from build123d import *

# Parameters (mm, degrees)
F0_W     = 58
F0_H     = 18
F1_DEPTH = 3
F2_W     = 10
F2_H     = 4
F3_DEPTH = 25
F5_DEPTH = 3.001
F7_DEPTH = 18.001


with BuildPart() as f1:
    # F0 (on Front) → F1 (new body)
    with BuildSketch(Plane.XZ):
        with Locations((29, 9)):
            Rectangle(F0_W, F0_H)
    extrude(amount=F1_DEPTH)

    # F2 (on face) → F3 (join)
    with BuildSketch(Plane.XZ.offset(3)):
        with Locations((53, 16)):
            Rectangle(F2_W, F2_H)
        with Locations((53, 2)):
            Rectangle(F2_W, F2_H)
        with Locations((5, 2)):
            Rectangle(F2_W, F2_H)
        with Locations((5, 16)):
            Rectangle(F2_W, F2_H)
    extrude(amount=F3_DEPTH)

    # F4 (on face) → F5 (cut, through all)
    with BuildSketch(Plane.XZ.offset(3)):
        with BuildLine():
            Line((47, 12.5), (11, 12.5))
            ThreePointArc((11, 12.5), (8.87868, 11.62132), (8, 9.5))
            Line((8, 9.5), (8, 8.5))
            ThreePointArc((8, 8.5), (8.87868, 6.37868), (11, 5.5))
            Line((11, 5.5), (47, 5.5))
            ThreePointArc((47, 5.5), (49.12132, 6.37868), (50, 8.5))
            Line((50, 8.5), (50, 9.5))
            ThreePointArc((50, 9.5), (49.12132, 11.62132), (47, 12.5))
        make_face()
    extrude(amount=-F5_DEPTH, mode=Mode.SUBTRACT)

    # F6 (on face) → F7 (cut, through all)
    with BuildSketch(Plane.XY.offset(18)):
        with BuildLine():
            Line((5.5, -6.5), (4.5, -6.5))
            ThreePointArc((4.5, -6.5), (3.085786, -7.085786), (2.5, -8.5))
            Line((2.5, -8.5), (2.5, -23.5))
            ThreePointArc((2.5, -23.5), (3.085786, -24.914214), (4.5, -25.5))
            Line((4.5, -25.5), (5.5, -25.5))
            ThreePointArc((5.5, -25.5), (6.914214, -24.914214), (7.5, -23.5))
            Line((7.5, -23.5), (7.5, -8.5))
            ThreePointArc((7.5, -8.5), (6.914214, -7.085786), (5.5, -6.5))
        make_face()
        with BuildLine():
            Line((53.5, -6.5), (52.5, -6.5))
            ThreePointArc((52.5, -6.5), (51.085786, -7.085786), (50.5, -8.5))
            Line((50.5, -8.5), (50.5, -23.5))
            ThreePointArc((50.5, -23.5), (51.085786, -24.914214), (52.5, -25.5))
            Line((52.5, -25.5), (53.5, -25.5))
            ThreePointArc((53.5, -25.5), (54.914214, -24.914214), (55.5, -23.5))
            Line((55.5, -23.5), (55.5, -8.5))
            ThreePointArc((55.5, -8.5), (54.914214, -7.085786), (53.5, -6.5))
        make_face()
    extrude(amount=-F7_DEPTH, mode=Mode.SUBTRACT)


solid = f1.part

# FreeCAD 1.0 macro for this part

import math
import FreeCAD as App
import Part
import Sketcher

doc = App.newDocument("Part")
params = doc.addObject("Spreadsheet::Sheet", "Params")
for row, (alias, value) in enumerate([
    ("sketch1_width", "58 mm"),
    ("sketch1_height", "18 mm"),
    ("pad1_length", "3 mm"),
    ("sketch2_width", "10 mm"),
    ("sketch2_height", "4 mm"),
    ("pad2_length", "25 mm"),
    ("sketch3_radius", "3.000001 mm"),
    ("sketch3_width", "36 mm"),
    ("sketch3_height", "1 mm"),
    ("sketch4_radius", "1.999999 mm"),
    ("sketch4_width", "1 mm"),
    ("sketch4_height", "15 mm"),
], start=1):
    params.set(f"A{row}", alias)
    params.set(f"B{row}", "=" + value)
    params.setAlias(f"B{row}", alias)

body = doc.addObject("PartDesign::Body", "Body")

sketch1 = body.newObject("Sketcher::SketchObject", "Sketch")
sketch1.AttachmentSupport = (doc.getObject("XZ_Plane"), [""])
sketch1.MapMode = "FlatFace"
sketch1.addGeometry([
    Part.LineSegment(App.Vector(0, 18, 0), App.Vector(0, 0, 0)),
    Part.LineSegment(App.Vector(0, 0, 0), App.Vector(58, 0, 0)),
    Part.LineSegment(App.Vector(58, 0, 0), App.Vector(58, 18, 0)),
    Part.LineSegment(App.Vector(58, 18, 0), App.Vector(0, 18, 0)),
], False)
sketch1.addConstraint([
    Sketcher.Constraint("Coincident", 0, 2, 1, 1),
    Sketcher.Constraint("Coincident", 1, 2, 2, 1),
    Sketcher.Constraint("Coincident", 2, 2, 3, 1),
    Sketcher.Constraint("Coincident", 3, 2, 0, 1),
    Sketcher.Constraint("Vertical", 0),
    Sketcher.Constraint("Horizontal", 1),
    Sketcher.Constraint("Vertical", 2),
    Sketcher.Constraint("Horizontal", 3),
    Sketcher.Constraint("Coincident", 0, 2, -1, 1),
    Sketcher.Constraint("DistanceX", 1, 1, 1, 2, 58.0),
    Sketcher.Constraint("DistanceY", 0, 2, 0, 1, 18.0),
])
sketch1.setExpression("Constraints[9]", "Params.sketch1_width")
sketch1.setExpression("Constraints[10]", "Params.sketch1_height")
pad1 = body.newObject("PartDesign::Pad", "Pad")
pad1.Profile = sketch1
pad1.setExpression("Length", "Params.pad1_length")

sketch2 = body.newObject("Sketcher::SketchObject", "Sketch001")
sketch2.AttachmentSupport = (doc.getObject("XZ_Plane"), [""])
sketch2.MapMode = "FlatFace"
sketch2.AttachmentOffset = App.Placement(App.Vector(0, 0, 3), App.Rotation())
sketch2.addGeometry([
    Part.LineSegment(App.Vector(48, 18, 0), App.Vector(48, 14, 0)),
    Part.LineSegment(App.Vector(48, 14, 0), App.Vector(58, 14, 0)),
    Part.LineSegment(App.Vector(58, 14, 0), App.Vector(58, 18, 0)),
    Part.LineSegment(App.Vector(58, 18, 0), App.Vector(48, 18, 0)),
    Part.LineSegment(App.Vector(48, 4, 0), App.Vector(48, 0, 0)),
    Part.LineSegment(App.Vector(48, 0, 0), App.Vector(58, 0, 0)),
    Part.LineSegment(App.Vector(58, 0, 0), App.Vector(58, 4, 0)),
    Part.LineSegment(App.Vector(58, 4, 0), App.Vector(48, 4, 0)),
    Part.LineSegment(App.Vector(0, 4, 0), App.Vector(0, 0, 0)),
    Part.LineSegment(App.Vector(0, 0, 0), App.Vector(10, 0, 0)),
    Part.LineSegment(App.Vector(10, 0, 0), App.Vector(10, 4, 0)),
    Part.LineSegment(App.Vector(10, 4, 0), App.Vector(0, 4, 0)),
    Part.LineSegment(App.Vector(0, 18, 0), App.Vector(0, 14, 0)),
    Part.LineSegment(App.Vector(0, 14, 0), App.Vector(10, 14, 0)),
    Part.LineSegment(App.Vector(10, 14, 0), App.Vector(10, 18, 0)),
    Part.LineSegment(App.Vector(10, 18, 0), App.Vector(0, 18, 0)),
], False)
sketch2.addConstraint([
    Sketcher.Constraint("Coincident", 0, 2, 1, 1),
    Sketcher.Constraint("Coincident", 1, 2, 2, 1),
    Sketcher.Constraint("Coincident", 2, 2, 3, 1),
    Sketcher.Constraint("Coincident", 3, 2, 0, 1),
    Sketcher.Constraint("Coincident", 4, 2, 5, 1),
    Sketcher.Constraint("Coincident", 5, 2, 6, 1),
    Sketcher.Constraint("Coincident", 6, 2, 7, 1),
    Sketcher.Constraint("Coincident", 7, 2, 4, 1),
    Sketcher.Constraint("Coincident", 8, 2, 9, 1),
    Sketcher.Constraint("Coincident", 9, 2, 10, 1),
    Sketcher.Constraint("Coincident", 10, 2, 11, 1),
    Sketcher.Constraint("Coincident", 11, 2, 8, 1),
    Sketcher.Constraint("Coincident", 12, 2, 13, 1),
    Sketcher.Constraint("Coincident", 13, 2, 14, 1),
    Sketcher.Constraint("Coincident", 14, 2, 15, 1),
    Sketcher.Constraint("Coincident", 15, 2, 12, 1),
    Sketcher.Constraint("Vertical", 0),
    Sketcher.Constraint("Horizontal", 1),
    Sketcher.Constraint("Vertical", 2),
    Sketcher.Constraint("Horizontal", 3),
    Sketcher.Constraint("Vertical", 4),
    Sketcher.Constraint("Horizontal", 5),
    Sketcher.Constraint("Vertical", 6),
    Sketcher.Constraint("Horizontal", 7),
    Sketcher.Constraint("Vertical", 8),
    Sketcher.Constraint("Horizontal", 9),
    Sketcher.Constraint("Vertical", 10),
    Sketcher.Constraint("Horizontal", 11),
    Sketcher.Constraint("Vertical", 12),
    Sketcher.Constraint("Horizontal", 13),
    Sketcher.Constraint("Vertical", 14),
    Sketcher.Constraint("Horizontal", 15),
    Sketcher.Constraint("Coincident", 8, 2, -1, 1),
    Sketcher.Constraint("PointOnObject", 4, 2, -1),
    Sketcher.Constraint("PointOnObject", 12, 2, -2),
    Sketcher.Constraint("Horizontal", 7, 2, 10, 2),
    Sketcher.Constraint("Horizontal", 1, 2, 12, 2),
    Sketcher.Constraint("Horizontal", 3, 2, 14, 2),
    Sketcher.Constraint("Vertical", 3, 2, 4, 2),
    Sketcher.Constraint("Vertical", 2, 2, 5, 2),
    Sketcher.Constraint("Vertical", 10, 2, 13, 2),
    Sketcher.Constraint("Equal", 7, 9),
    Sketcher.Constraint("Equal", 2, 4),
    Sketcher.Constraint("DistanceX", 1, 1, 1, 2, 10.0),
    Sketcher.Constraint("DistanceY", 0, 2, 0, 1, 4.0),
    Sketcher.Constraint("DistanceX", -1, 1, 0, 2, 48.0),
    Sketcher.Constraint("DistanceY", -1, 1, 0, 2, 14.0),
])
sketch2.setExpression("Constraints[43]", "Params.sketch2_width")
sketch2.setExpression("Constraints[44]", "Params.sketch2_height")
pad2 = body.newObject("PartDesign::Pad", "Pad001")
pad2.Profile = sketch2
pad2.setExpression("Length", "Params.pad2_length")

sketch3 = body.newObject("Sketcher::SketchObject", "Sketch002")
sketch3.AttachmentSupport = (doc.getObject("XZ_Plane"), [""])
sketch3.MapMode = "FlatFace"
sketch3.AttachmentOffset = App.Placement(App.Vector(0, 0, 3), App.Rotation())
sketch3.addGeometry([
    Part.LineSegment(App.Vector(47, 12.5, 0), App.Vector(11, 12.5, 0)),
    Part.ArcOfCircle(Part.Circle(App.Vector(11, 9.5, 0), App.Vector(0, 0, 1), 3), math.radians(90), math.radians(180)),
    Part.LineSegment(App.Vector(8, 9.5, 0), App.Vector(8, 8.5, 0)),
    Part.ArcOfCircle(Part.Circle(App.Vector(11, 8.5, 0), App.Vector(0, 0, 1), 3), math.radians(-180), math.radians(-90)),
    Part.LineSegment(App.Vector(11, 5.5, 0), App.Vector(47, 5.5, 0)),
    Part.ArcOfCircle(Part.Circle(App.Vector(47, 8.5, 0), App.Vector(0, 0, 1), 3), math.radians(-90), math.radians(0)),
    Part.LineSegment(App.Vector(50, 8.5, 0), App.Vector(50, 9.5, 0)),
    Part.ArcOfCircle(Part.Circle(App.Vector(47, 9.5, 0), App.Vector(0, 0, 1), 3), math.radians(0), math.radians(90)),
], False)
sketch3.addConstraint([
    Sketcher.Constraint("Tangent", 0, 2, 1, 1),
    Sketcher.Constraint("Tangent", 1, 2, 2, 1),
    Sketcher.Constraint("Tangent", 2, 2, 3, 1),
    Sketcher.Constraint("Tangent", 3, 2, 4, 1),
    Sketcher.Constraint("Tangent", 4, 2, 5, 1),
    Sketcher.Constraint("Tangent", 5, 2, 6, 1),
    Sketcher.Constraint("Tangent", 6, 2, 7, 1),
    Sketcher.Constraint("Tangent", 7, 2, 0, 1),
    Sketcher.Constraint("Horizontal", 0),
    Sketcher.Constraint("Vertical", 2),
    Sketcher.Constraint("Horizontal", 4),
    Sketcher.Constraint("Vertical", 6),
    Sketcher.Constraint("Equal", 1, 3),
    Sketcher.Constraint("Equal", 3, 5),
    Sketcher.Constraint("Equal", 5, 7),
    Sketcher.Constraint("Radius", 1, 3.000001),
    Sketcher.Constraint("DistanceX", 0, 2, 0, 1, 36.0),
    Sketcher.Constraint("DistanceY", 2, 2, 2, 1, 1.0),
    Sketcher.Constraint("DistanceX", -1, 1, 1, 3, 11.000001),
    Sketcher.Constraint("DistanceY", -1, 1, 1, 3, 9.499999),
])
sketch3.setExpression("Constraints[15]", "Params.sketch3_radius")
sketch3.setExpression("Constraints[16]", "Params.sketch3_width")
sketch3.setExpression("Constraints[17]", "Params.sketch3_height")
pocket1 = body.newObject("PartDesign::Pocket", "Pocket")
pocket1.Profile = sketch3
pocket1.Type = "ThroughAll"

sketch4 = body.newObject("Sketcher::SketchObject", "Sketch003")
sketch4.AttachmentSupport = (doc.getObject("XY_Plane"), [""])
sketch4.MapMode = "FlatFace"
sketch4.AttachmentOffset = App.Placement(App.Vector(0, 0, 18), App.Rotation())
sketch4.addGeometry([
    Part.LineSegment(App.Vector(5.5, -6.5, 0), App.Vector(4.5, -6.5, 0)),
    Part.ArcOfCircle(Part.Circle(App.Vector(4.5, -8.5, 0), App.Vector(0, 0, 1), 2), math.radians(90), math.radians(180)),
    Part.LineSegment(App.Vector(2.5, -8.5, 0), App.Vector(2.5, -23.5, 0)),
    Part.ArcOfCircle(Part.Circle(App.Vector(4.5, -23.5, 0), App.Vector(0, 0, 1), 2), math.radians(180), math.radians(270)),
    Part.LineSegment(App.Vector(4.5, -25.5, 0), App.Vector(5.5, -25.5, 0)),
    Part.ArcOfCircle(Part.Circle(App.Vector(5.5, -23.5, 0), App.Vector(0, 0, 1), 2), math.radians(-90), math.radians(0)),
    Part.LineSegment(App.Vector(7.5, -23.5, 0), App.Vector(7.5, -8.5, 0)),
    Part.ArcOfCircle(Part.Circle(App.Vector(5.5, -8.5, 0), App.Vector(0, 0, 1), 2), math.radians(0), math.radians(90)),
    Part.LineSegment(App.Vector(53.5, -6.5, 0), App.Vector(52.5, -6.5, 0)),
    Part.ArcOfCircle(Part.Circle(App.Vector(52.5, -8.5, 0), App.Vector(0, 0, 1), 2), math.radians(90), math.radians(180)),
    Part.LineSegment(App.Vector(50.5, -8.5, 0), App.Vector(50.5, -23.5, 0)),
    Part.ArcOfCircle(Part.Circle(App.Vector(52.5, -23.5, 0), App.Vector(0, 0, 1), 2), math.radians(180), math.radians(270)),
    Part.LineSegment(App.Vector(52.5, -25.5, 0), App.Vector(53.5, -25.5, 0)),
    Part.ArcOfCircle(Part.Circle(App.Vector(53.5, -23.5, 0), App.Vector(0, 0, 1), 2), math.radians(-90), math.radians(0)),
    Part.LineSegment(App.Vector(55.5, -23.5, 0), App.Vector(55.5, -8.5, 0)),
    Part.ArcOfCircle(Part.Circle(App.Vector(53.5, -8.5, 0), App.Vector(0, 0, 1), 2), math.radians(0), math.radians(90)),
], False)
sketch4.addConstraint([
    Sketcher.Constraint("Tangent", 0, 2, 1, 1),
    Sketcher.Constraint("Tangent", 1, 2, 2, 1),
    Sketcher.Constraint("Tangent", 2, 2, 3, 1),
    Sketcher.Constraint("Tangent", 3, 2, 4, 1),
    Sketcher.Constraint("Tangent", 4, 2, 5, 1),
    Sketcher.Constraint("Tangent", 5, 2, 6, 1),
    Sketcher.Constraint("Tangent", 6, 2, 7, 1),
    Sketcher.Constraint("Tangent", 7, 2, 0, 1),
    Sketcher.Constraint("Tangent", 8, 2, 9, 1),
    Sketcher.Constraint("Tangent", 9, 2, 10, 1),
    Sketcher.Constraint("Tangent", 10, 2, 11, 1),
    Sketcher.Constraint("Tangent", 11, 2, 12, 1),
    Sketcher.Constraint("Tangent", 12, 2, 13, 1),
    Sketcher.Constraint("Tangent", 13, 2, 14, 1),
    Sketcher.Constraint("Tangent", 14, 2, 15, 1),
    Sketcher.Constraint("Tangent", 15, 2, 8, 1),
    Sketcher.Constraint("Horizontal", 0),
    Sketcher.Constraint("Vertical", 2),
    Sketcher.Constraint("Horizontal", 4),
    Sketcher.Constraint("Vertical", 6),
    Sketcher.Constraint("Horizontal", 8),
    Sketcher.Constraint("Vertical", 10),
    Sketcher.Constraint("Horizontal", 12),
    Sketcher.Constraint("Vertical", 14),
    Sketcher.Constraint("Equal", 1, 3),
    Sketcher.Constraint("Equal", 3, 5),
    Sketcher.Constraint("Equal", 5, 7),
    Sketcher.Constraint("Equal", 7, 9),
    Sketcher.Constraint("Equal", 9, 11),
    Sketcher.Constraint("Equal", 11, 13),
    Sketcher.Constraint("Equal", 13, 15),
    Sketcher.Constraint("Horizontal", 7, 3, 9, 3),
    Sketcher.Constraint("Horizontal", 5, 3, 11, 3),
    Sketcher.Constraint("Equal", 4, 8),
    Sketcher.Constraint("Radius", 1, 1.999999),
    Sketcher.Constraint("DistanceX", 0, 2, 0, 1, 1.0),
    Sketcher.Constraint("DistanceY", 2, 2, 2, 1, 15.0),
    Sketcher.Constraint("DistanceX", 1, 3, 9, 3, 48.0),
    Sketcher.Constraint("DistanceX", -1, 1, 1, 3, 4.499999),
    Sketcher.Constraint("DistanceY", 1, 3, -1, 1, 8.499999),
])
sketch4.setExpression("Constraints[34]", "Params.sketch4_radius")
sketch4.setExpression("Constraints[35]", "Params.sketch4_width")
sketch4.setExpression("Constraints[36]", "Params.sketch4_height")
pocket2 = body.newObject("PartDesign::Pocket", "Pocket001")
pocket2.Profile = sketch4
pocket2.Type = "ThroughAll"

doc.recompute()
